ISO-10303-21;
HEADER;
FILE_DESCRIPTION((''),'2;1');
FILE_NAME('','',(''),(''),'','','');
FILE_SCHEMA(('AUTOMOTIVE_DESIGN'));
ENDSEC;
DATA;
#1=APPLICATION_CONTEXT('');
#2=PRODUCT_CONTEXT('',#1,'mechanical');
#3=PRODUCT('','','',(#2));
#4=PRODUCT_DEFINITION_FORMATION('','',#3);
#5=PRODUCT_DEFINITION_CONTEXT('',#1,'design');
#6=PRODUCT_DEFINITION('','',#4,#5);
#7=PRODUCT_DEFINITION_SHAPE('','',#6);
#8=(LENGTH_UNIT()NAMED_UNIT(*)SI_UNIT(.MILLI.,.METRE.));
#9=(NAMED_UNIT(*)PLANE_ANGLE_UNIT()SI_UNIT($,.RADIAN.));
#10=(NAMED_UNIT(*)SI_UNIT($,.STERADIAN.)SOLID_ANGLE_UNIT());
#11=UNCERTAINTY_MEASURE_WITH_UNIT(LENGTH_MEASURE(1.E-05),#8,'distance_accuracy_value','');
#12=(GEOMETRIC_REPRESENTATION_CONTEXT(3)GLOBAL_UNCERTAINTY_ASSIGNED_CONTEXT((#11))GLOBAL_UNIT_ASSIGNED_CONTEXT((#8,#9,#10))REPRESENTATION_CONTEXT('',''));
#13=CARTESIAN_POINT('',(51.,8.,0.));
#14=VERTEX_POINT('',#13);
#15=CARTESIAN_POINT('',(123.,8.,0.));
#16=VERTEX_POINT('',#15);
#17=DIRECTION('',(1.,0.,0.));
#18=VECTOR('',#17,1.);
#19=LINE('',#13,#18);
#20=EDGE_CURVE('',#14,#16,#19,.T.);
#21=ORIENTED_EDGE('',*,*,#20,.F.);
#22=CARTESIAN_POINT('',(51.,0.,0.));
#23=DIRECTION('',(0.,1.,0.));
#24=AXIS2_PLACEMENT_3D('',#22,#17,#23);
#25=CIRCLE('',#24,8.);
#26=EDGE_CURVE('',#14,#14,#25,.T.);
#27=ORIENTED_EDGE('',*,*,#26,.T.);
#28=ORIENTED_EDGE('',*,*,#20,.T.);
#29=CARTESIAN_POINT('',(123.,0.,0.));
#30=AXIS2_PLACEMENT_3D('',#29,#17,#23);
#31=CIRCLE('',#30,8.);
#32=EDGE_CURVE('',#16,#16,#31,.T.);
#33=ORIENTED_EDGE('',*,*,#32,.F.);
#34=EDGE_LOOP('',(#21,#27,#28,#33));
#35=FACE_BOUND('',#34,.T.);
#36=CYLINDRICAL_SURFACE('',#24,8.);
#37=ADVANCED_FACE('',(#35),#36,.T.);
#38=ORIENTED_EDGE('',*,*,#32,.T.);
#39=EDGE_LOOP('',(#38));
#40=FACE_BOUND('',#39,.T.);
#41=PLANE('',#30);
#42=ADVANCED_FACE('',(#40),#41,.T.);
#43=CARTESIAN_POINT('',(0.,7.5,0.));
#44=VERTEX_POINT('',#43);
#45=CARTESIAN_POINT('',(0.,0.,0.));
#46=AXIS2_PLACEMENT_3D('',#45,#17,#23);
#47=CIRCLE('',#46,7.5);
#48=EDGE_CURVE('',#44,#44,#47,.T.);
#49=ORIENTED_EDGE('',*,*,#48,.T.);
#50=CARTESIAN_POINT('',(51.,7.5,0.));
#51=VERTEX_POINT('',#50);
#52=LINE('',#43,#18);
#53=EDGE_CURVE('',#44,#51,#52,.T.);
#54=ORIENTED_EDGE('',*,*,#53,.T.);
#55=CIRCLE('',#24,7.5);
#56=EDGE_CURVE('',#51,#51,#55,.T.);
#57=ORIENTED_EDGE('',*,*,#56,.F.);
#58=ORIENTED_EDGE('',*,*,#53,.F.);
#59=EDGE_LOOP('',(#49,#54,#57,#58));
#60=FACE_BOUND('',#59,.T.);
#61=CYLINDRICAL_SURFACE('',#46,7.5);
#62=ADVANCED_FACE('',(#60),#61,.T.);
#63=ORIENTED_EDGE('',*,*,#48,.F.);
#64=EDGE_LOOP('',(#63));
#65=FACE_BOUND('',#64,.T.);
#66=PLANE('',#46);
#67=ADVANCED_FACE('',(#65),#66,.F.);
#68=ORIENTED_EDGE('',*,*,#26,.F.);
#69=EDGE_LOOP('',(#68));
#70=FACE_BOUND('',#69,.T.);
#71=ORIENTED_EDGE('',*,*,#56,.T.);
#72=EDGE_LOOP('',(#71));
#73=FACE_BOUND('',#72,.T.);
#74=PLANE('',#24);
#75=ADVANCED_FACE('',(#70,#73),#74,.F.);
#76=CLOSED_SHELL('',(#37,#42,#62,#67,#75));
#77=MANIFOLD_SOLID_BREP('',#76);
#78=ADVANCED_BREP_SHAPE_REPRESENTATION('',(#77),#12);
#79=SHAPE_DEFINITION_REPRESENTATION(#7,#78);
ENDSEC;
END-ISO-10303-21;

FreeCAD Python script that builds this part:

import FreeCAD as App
import Part
import Sketcher

V = App.Vector
Q = App.Units.Quantity


def add_polygon(sketch, points):
    """Adds a closed chain of lines whose ends are joined by coincident constraints."""
    first, n = sketch.GeometryCount, len(points)
    for a, b in zip(points, points[1:] + points[:1]):
        sketch.addGeometry(Part.LineSegment(App.Vector(*a, 0), App.Vector(*b, 0)), False)
    for i in range(n):
        sketch.addConstraint(Sketcher.Constraint("Coincident", first + i, 2, first + (i + 1) % n, 1))

doc = App.newDocument("Part")
body = doc.addObject("PartDesign::Body", "Body")

sketch1 = body.newObject("Sketcher::SketchObject", "Sketch")
sketch1.AttachmentSupport = (doc.getObject("XY_Plane"), [""])
sketch1.MapMode = "FlatFace"
add_polygon(sketch1, [(0, 7.5), (0, 0), (123, 0), (123, 8), (51, 8), (51, 7.5)])
sketch1.addConstraint(Sketcher.Constraint("Vertical", 0))
sketch1.addConstraint(Sketcher.Constraint("Horizontal", 1))
sketch1.addConstraint(Sketcher.Constraint("Vertical", 2))
sketch1.addConstraint(Sketcher.Constraint("Horizontal", 3))
sketch1.addConstraint(Sketcher.Constraint("Vertical", 4))
sketch1.addConstraint(Sketcher.Constraint("Horizontal", 5))
sketch1.addConstraint(Sketcher.Constraint("Coincident", 0, 2, -1, 1))
sketch1.addConstraint(Sketcher.Constraint("DistanceX", 1, 1, 1, 2, Q("123 mm")))
sketch1.addConstraint(Sketcher.Constraint("DistanceX", 3, 2, 3, 1, Q("72 mm")))
sketch1.addConstraint(Sketcher.Constraint("DistanceY", 2, 1, 2, 2, Q("8 mm")))
sketch1.addConstraint(Sketcher.Constraint("DistanceY", 0, 2, 0, 1, Q("7.5 mm")))
revolution = body.newObject("PartDesign::Revolution", "Revolution")
revolution.Profile = sketch1
revolution.ReferenceAxis = (sketch1, ["H_Axis"])
revolution.Angle = 360

doc.recompute()
